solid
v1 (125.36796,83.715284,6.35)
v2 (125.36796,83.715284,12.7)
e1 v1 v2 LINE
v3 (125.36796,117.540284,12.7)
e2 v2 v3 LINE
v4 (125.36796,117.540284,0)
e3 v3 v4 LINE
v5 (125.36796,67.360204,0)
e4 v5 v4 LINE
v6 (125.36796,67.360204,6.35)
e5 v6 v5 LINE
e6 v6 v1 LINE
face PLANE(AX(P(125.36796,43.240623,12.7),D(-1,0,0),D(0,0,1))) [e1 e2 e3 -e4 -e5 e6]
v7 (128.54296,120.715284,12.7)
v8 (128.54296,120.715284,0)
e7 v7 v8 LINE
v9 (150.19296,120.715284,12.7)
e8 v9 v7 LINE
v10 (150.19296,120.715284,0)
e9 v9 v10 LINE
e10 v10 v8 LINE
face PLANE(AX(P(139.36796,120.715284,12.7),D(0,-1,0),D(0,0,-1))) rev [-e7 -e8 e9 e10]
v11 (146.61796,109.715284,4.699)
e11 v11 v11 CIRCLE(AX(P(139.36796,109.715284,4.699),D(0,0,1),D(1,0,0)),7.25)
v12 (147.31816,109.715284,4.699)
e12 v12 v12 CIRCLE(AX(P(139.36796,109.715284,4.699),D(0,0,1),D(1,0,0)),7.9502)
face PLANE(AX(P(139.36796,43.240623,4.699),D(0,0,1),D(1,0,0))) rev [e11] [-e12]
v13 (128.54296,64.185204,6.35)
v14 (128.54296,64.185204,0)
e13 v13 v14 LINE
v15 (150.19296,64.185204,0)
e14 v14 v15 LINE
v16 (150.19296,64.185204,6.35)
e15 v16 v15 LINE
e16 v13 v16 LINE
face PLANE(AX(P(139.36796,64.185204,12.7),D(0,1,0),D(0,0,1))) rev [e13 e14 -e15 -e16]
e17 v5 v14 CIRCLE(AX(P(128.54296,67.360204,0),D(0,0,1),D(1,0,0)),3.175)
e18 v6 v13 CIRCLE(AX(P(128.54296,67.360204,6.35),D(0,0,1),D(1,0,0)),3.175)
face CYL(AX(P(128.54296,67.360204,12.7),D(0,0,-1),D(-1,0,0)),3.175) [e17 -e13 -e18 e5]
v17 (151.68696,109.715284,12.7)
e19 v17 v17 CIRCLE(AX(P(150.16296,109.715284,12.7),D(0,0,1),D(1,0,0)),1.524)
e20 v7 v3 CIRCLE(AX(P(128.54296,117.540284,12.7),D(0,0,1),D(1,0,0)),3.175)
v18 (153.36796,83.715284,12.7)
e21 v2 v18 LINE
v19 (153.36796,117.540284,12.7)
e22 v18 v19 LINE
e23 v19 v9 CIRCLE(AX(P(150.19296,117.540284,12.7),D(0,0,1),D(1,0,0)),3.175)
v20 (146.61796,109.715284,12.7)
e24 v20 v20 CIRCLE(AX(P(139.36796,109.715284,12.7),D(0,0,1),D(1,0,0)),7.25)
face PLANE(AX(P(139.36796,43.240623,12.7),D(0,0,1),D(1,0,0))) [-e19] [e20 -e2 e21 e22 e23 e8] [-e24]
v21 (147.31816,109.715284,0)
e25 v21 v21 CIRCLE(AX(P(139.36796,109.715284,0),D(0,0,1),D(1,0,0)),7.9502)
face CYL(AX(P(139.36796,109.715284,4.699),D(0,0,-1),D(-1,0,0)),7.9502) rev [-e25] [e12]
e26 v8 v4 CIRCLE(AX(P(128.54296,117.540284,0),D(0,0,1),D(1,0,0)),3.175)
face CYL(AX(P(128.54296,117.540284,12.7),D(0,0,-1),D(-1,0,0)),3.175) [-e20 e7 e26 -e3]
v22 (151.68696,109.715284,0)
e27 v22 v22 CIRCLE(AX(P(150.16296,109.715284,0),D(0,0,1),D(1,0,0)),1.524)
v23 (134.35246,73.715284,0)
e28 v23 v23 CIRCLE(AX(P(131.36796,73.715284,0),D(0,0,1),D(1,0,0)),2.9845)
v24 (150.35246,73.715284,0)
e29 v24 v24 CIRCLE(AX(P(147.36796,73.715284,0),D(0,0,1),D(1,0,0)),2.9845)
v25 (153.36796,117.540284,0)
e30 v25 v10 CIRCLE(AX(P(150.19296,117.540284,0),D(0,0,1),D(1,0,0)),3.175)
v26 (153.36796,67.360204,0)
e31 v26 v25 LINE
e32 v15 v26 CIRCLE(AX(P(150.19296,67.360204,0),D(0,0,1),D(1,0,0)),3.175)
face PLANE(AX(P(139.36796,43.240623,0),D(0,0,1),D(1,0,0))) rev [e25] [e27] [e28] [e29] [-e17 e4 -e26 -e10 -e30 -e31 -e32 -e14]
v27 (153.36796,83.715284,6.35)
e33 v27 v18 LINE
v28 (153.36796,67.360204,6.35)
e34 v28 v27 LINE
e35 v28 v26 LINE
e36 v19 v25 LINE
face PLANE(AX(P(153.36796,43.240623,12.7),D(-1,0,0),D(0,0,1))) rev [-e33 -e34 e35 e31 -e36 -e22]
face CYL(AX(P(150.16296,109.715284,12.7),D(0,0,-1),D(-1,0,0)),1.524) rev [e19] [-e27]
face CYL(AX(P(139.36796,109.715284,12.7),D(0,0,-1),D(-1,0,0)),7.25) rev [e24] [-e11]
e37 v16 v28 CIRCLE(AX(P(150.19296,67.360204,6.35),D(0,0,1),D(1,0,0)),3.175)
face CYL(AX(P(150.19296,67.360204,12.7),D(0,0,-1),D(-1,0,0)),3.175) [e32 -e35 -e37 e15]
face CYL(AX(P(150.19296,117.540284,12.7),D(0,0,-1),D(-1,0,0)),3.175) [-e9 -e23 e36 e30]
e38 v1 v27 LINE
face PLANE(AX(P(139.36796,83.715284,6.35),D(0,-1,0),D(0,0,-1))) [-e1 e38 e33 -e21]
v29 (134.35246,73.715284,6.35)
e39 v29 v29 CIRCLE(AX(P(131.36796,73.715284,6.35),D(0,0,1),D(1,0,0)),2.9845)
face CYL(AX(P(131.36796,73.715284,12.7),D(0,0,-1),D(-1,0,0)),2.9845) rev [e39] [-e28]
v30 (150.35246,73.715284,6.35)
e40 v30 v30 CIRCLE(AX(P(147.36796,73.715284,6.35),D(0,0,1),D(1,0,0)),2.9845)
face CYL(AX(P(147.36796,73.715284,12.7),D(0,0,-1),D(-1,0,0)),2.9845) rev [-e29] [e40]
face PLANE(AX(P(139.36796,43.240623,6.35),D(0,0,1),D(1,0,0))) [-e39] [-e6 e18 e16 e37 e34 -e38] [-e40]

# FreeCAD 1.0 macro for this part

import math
import FreeCAD as App
import Part
import Sketcher
Q = App.Units.Quantity

doc = App.newDocument("Part")
params = doc.addObject("Spreadsheet::Sheet", "Params")
for row, (alias, value) in enumerate([
    ("sketch1_diameter", "0.12 in"),
    ("sketch1_diameter2", "0.235 in"),
    ("sketch1_radius", "0.125 in"),
    ("pad1_length", "0.5 in"),
    ("sketch2_diameter", "0.626 in"),
    ("pocket1_length", "0.185 in"),
    ("sketch3_diameter", "0.235 in"),
    ("sketch3_radius", "0.125 in"),
    ("pocket2_length", "0.25 in"),
], start=1):
    params.set(f"A{row}", alias)
    params.set(f"B{row}", "=" + value)
    params.setAlias(f"B{row}", alias)

body = doc.addObject("PartDesign::Body", "Body")

# Sketch on XY plane
sketch1 = body.newObject("Sketcher::SketchObject", "Sketch")
sketch1.AttachmentSupport = (doc.getObject("XY_Plane"), [""])
sketch1.MapMode = "FlatFace"
sketch1.addGeometry([
    Part.LineSegment(App.Vector(125.36796, 117.540284, 0), App.Vector(125.36796, 67.360204, 0)),  # 0
    Part.ArcOfCircle(Part.Circle(App.Vector(128.54296, 67.360204, 0), App.Vector(0, 0, 1), 3.175), math.radians(180), math.radians(270)),  # 1
    Part.LineSegment(App.Vector(128.54296, 64.185204, 0), App.Vector(150.19296, 64.185204, 0)),  # 2
    Part.ArcOfCircle(Part.Circle(App.Vector(150.19296, 67.360204, 0), App.Vector(0, 0, 1), 3.175), math.radians(-90), math.radians(0)),  # 3
    Part.LineSegment(App.Vector(153.36796, 67.360204, 0), App.Vector(153.36796, 117.540284, 0)),  # 4
    Part.ArcOfCircle(Part.Circle(App.Vector(150.19296, 117.540284, 0), App.Vector(0, 0, 1), 3.175), math.radians(0), math.radians(90)),  # 5
    Part.LineSegment(App.Vector(150.19296, 120.715284, 0), App.Vector(128.54296, 120.715284, 0)),  # 6
    Part.ArcOfCircle(Part.Circle(App.Vector(128.54296, 117.540284, 0), App.Vector(0, 0, 1), 3.175), math.radians(90), math.radians(180)),  # 7
    Part.Circle(App.Vector(150.16296, 109.715284, 0), App.Vector(0, 0, 1), 1.524),  # 8
    Part.Circle(App.Vector(147.36796, 73.715284, 0), App.Vector(0, 0, 1), 2.9845),  # 9
    Part.Circle(App.Vector(131.36796, 73.715284, 0), App.Vector(0, 0, 1), 2.9845),  # 10
    Part.Circle(App.Vector(139.36796, 109.715284, 0), App.Vector(0, 0, 1), 7.25),  # 11
], False)
sketch1.addConstraint([
    Sketcher.Constraint("Tangent", 0, 2, 1, 1),
    Sketcher.Constraint("Tangent", 1, 2, 2, 1),
    Sketcher.Constraint("Tangent", 2, 2, 3, 1),
    Sketcher.Constraint("Tangent", 3, 2, 4, 1),
    Sketcher.Constraint("Tangent", 4, 2, 5, 1),
    Sketcher.Constraint("Tangent", 5, 2, 6, 1),
    Sketcher.Constraint("Tangent", 6, 2, 7, 1),
    Sketcher.Constraint("Tangent", 7, 2, 0, 1),
    Sketcher.Constraint("Vertical", 0),
    Sketcher.Constraint("Horizontal", 2),
    Sketcher.Constraint("Vertical", 4),
    Sketcher.Constraint("Horizontal", 6),
    Sketcher.Constraint("Equal", 1, 3),
    Sketcher.Constraint("Equal", 3, 5),
    Sketcher.Constraint("Equal", 5, 7),
    Sketcher.Constraint("Equal", 9, 10),
    Sketcher.Constraint("Horizontal", 9, 3, 10, 3),
    Sketcher.Constraint("Horizontal", 8, 3, 11, 3),
    Sketcher.Constraint("Diameter", 8, Q("0.12 in")),
    Sketcher.Constraint("Diameter", 9, Q("0.235 in")),
    Sketcher.Constraint("Radius", 1, Q("0.125 in")),
    Sketcher.Constraint("Diameter", 11, 14.5),
    Sketcher.Constraint("DistanceX", 11, 3, 8, 3, Q("0.425 in")),
    Sketcher.Constraint("DistanceX", 2, 1, 2, 2, 21.65),
    Sketcher.Constraint("DistanceY", 3, 3, 9, 3, Q("0.2502 in")),
    Sketcher.Constraint("DistanceY", 0, 2, 0, 1, 50.18008),
    Sketcher.Constraint("DistanceX", 8, 3, 5, 3, 0.03),
    Sketcher.Constraint("DistanceY", 8, 3, 5, 3, 7.825),
    Sketcher.Constraint("DistanceX", 9, 3, 3, 3, 2.825),
    Sketcher.Constraint("DistanceX", 1, 3, 10, 3, 2.825),
    Sketcher.Constraint("DistanceX", -1, 1, 1, 3, 128.54296),
    Sketcher.Constraint("DistanceY", -1, 1, 1, 3, 67.360204),
])
sketch1.setExpression("Constraints[18]", "Params.sketch1_diameter")
sketch1.setExpression("Constraints[19]", "Params.sketch1_diameter2")
sketch1.setExpression("Constraints[20]", "Params.sketch1_radius")
pad1 = body.newObject("PartDesign::Pad", "Pad")
pad1.Profile = sketch1
pad1.setExpression("Length", "Params.pad1_length")

# Sketch on XY plane
sketch2 = body.newObject("Sketcher::SketchObject", "Sketch001")
sketch2.AttachmentSupport = (doc.getObject("XY_Plane"), [""])
sketch2.MapMode = "FlatFace"
sketch2.addGeometry([
    Part.Circle(App.Vector(139.36796, 109.715284, 0), App.Vector(0, 0, 1), 7.9502),
    Part.Circle(App.Vector(139.36796, 109.715284, 0), App.Vector(0, 0, 1), 7.25),
], False)
sketch2.addConstraint([
    Sketcher.Constraint("Coincident", 1, 3, 0, 3),
    Sketcher.Constraint("Diameter", 0, Q("0.626 in")),
    Sketcher.Constraint("Diameter", 1, 14.5),
    Sketcher.Constraint("DistanceX", -1, 1, 0, 3, 139.36796),
    Sketcher.Constraint("DistanceY", -1, 1, 0, 3, 109.715284),
])
sketch2.setExpression("Constraints[1]", "Params.sketch2_diameter")
pocket1 = body.newObject("PartDesign::Pocket", "Pocket")
pocket1.Profile = sketch2
pocket1.setExpression("Length", "Params.pocket1_length")
pocket1.Reversed = True

# Sketch on XY plane
sketch3 = body.newObject("Sketcher::SketchObject", "Sketch002")
sketch3.AttachmentSupport = (doc.getObject("XY_Plane"), [""])
sketch3.MapMode = "FlatFace"
sketch3.AttachmentOffset = App.Placement(App.Vector(0, 0, 0.25 * 25.4), App.Rotation())
sketch3.addGeometry([
    Part.ArcOfCircle(Part.Circle(App.Vector(128.54296, 67.360204, 0), App.Vector(0, 0, 1), 3.175), math.radians(180), math.radians(270)),  # 0
    Part.LineSegment(App.Vector(128.54296, 64.185204, 0), App.Vector(150.19296, 64.185204, 0)),  # 1
    Part.ArcOfCircle(Part.Circle(App.Vector(150.19296, 67.360204, 0), App.Vector(0, 0, 1), 3.175), math.radians(-90), math.radians(0)),  # 2
    Part.LineSegment(App.Vector(153.36796, 67.360204, 0), App.Vector(153.36796, 83.715284, 0)),  # 3
    Part.LineSegment(App.Vector(153.36796, 83.715284, 0), App.Vector(125.36796, 83.715284, 0)),  # 4
    Part.LineSegment(App.Vector(125.36796, 83.715284, 0), App.Vector(125.36796, 67.360204, 0)),  # 5
    Part.Circle(App.Vector(131.36796, 73.715284, 0), App.Vector(0, 0, 1), 2.9845),  # 6
    Part.Circle(App.Vector(147.36796, 73.715284, 0), App.Vector(0, 0, 1), 2.9845),  # 7
], False)
sketch3.addConstraint([
    Sketcher.Constraint("Tangent", 0, 2, 1, 1),
    Sketcher.Constraint("Tangent", 1, 2, 2, 1),
    Sketcher.Constraint("Tangent", 2, 2, 3, 1),
    Sketcher.Constraint("Coincident", 3, 2, 4, 1),
    Sketcher.Constraint("Coincident", 4, 2, 5, 1),
    Sketcher.Constraint("Tangent", 5, 2, 0, 1),
    Sketcher.Constraint("Horizontal", 1),
    Sketcher.Constraint("Vertical", 3),
    Sketcher.Constraint("Horizontal", 4),
    Sketcher.Constraint("Vertical", 5),
    Sketcher.Constraint("Equal", 0, 2),
    Sketcher.Constraint("Equal", 6, 7),
    Sketcher.Constraint("Horizontal", 6, 3, 7, 3),
    Sketcher.Constraint("Diameter", 6, Q("0.235 in")),
    Sketcher.Constraint("Radius", 0, Q("0.125 in")),
    Sketcher.Constraint("DistanceX", 1, 1, 1, 2, 21.65),
    Sketcher.Constraint("DistanceY", 0, 3, 6, 3, Q("0.2502 in")),
    Sketcher.Constraint("DistanceY", 3, 1, 3, 2, 16.35508),
    Sketcher.Constraint("DistanceX", 0, 3, 6, 3, 2.825),
    Sketcher.Constraint("DistanceX", 7, 3, 2, 3, 2.825),
    Sketcher.Constraint("DistanceX", -1, 1, 0, 3, 128.54296),
    Sketcher.Constraint("DistanceY", -1, 1, 0, 3, 67.360204),
])
sketch3.setExpression("Constraints[13]", "Params.sketch3_diameter")
sketch3.setExpression("Constraints[14]", "Params.sketch3_radius")
pocket2 = body.newObject("PartDesign::Pocket", "Pocket001")
pocket2.Profile = sketch3
pocket2.setExpression("Length", "Params.pocket2_length")
pocket2.Reversed = True

doc.recompute()
